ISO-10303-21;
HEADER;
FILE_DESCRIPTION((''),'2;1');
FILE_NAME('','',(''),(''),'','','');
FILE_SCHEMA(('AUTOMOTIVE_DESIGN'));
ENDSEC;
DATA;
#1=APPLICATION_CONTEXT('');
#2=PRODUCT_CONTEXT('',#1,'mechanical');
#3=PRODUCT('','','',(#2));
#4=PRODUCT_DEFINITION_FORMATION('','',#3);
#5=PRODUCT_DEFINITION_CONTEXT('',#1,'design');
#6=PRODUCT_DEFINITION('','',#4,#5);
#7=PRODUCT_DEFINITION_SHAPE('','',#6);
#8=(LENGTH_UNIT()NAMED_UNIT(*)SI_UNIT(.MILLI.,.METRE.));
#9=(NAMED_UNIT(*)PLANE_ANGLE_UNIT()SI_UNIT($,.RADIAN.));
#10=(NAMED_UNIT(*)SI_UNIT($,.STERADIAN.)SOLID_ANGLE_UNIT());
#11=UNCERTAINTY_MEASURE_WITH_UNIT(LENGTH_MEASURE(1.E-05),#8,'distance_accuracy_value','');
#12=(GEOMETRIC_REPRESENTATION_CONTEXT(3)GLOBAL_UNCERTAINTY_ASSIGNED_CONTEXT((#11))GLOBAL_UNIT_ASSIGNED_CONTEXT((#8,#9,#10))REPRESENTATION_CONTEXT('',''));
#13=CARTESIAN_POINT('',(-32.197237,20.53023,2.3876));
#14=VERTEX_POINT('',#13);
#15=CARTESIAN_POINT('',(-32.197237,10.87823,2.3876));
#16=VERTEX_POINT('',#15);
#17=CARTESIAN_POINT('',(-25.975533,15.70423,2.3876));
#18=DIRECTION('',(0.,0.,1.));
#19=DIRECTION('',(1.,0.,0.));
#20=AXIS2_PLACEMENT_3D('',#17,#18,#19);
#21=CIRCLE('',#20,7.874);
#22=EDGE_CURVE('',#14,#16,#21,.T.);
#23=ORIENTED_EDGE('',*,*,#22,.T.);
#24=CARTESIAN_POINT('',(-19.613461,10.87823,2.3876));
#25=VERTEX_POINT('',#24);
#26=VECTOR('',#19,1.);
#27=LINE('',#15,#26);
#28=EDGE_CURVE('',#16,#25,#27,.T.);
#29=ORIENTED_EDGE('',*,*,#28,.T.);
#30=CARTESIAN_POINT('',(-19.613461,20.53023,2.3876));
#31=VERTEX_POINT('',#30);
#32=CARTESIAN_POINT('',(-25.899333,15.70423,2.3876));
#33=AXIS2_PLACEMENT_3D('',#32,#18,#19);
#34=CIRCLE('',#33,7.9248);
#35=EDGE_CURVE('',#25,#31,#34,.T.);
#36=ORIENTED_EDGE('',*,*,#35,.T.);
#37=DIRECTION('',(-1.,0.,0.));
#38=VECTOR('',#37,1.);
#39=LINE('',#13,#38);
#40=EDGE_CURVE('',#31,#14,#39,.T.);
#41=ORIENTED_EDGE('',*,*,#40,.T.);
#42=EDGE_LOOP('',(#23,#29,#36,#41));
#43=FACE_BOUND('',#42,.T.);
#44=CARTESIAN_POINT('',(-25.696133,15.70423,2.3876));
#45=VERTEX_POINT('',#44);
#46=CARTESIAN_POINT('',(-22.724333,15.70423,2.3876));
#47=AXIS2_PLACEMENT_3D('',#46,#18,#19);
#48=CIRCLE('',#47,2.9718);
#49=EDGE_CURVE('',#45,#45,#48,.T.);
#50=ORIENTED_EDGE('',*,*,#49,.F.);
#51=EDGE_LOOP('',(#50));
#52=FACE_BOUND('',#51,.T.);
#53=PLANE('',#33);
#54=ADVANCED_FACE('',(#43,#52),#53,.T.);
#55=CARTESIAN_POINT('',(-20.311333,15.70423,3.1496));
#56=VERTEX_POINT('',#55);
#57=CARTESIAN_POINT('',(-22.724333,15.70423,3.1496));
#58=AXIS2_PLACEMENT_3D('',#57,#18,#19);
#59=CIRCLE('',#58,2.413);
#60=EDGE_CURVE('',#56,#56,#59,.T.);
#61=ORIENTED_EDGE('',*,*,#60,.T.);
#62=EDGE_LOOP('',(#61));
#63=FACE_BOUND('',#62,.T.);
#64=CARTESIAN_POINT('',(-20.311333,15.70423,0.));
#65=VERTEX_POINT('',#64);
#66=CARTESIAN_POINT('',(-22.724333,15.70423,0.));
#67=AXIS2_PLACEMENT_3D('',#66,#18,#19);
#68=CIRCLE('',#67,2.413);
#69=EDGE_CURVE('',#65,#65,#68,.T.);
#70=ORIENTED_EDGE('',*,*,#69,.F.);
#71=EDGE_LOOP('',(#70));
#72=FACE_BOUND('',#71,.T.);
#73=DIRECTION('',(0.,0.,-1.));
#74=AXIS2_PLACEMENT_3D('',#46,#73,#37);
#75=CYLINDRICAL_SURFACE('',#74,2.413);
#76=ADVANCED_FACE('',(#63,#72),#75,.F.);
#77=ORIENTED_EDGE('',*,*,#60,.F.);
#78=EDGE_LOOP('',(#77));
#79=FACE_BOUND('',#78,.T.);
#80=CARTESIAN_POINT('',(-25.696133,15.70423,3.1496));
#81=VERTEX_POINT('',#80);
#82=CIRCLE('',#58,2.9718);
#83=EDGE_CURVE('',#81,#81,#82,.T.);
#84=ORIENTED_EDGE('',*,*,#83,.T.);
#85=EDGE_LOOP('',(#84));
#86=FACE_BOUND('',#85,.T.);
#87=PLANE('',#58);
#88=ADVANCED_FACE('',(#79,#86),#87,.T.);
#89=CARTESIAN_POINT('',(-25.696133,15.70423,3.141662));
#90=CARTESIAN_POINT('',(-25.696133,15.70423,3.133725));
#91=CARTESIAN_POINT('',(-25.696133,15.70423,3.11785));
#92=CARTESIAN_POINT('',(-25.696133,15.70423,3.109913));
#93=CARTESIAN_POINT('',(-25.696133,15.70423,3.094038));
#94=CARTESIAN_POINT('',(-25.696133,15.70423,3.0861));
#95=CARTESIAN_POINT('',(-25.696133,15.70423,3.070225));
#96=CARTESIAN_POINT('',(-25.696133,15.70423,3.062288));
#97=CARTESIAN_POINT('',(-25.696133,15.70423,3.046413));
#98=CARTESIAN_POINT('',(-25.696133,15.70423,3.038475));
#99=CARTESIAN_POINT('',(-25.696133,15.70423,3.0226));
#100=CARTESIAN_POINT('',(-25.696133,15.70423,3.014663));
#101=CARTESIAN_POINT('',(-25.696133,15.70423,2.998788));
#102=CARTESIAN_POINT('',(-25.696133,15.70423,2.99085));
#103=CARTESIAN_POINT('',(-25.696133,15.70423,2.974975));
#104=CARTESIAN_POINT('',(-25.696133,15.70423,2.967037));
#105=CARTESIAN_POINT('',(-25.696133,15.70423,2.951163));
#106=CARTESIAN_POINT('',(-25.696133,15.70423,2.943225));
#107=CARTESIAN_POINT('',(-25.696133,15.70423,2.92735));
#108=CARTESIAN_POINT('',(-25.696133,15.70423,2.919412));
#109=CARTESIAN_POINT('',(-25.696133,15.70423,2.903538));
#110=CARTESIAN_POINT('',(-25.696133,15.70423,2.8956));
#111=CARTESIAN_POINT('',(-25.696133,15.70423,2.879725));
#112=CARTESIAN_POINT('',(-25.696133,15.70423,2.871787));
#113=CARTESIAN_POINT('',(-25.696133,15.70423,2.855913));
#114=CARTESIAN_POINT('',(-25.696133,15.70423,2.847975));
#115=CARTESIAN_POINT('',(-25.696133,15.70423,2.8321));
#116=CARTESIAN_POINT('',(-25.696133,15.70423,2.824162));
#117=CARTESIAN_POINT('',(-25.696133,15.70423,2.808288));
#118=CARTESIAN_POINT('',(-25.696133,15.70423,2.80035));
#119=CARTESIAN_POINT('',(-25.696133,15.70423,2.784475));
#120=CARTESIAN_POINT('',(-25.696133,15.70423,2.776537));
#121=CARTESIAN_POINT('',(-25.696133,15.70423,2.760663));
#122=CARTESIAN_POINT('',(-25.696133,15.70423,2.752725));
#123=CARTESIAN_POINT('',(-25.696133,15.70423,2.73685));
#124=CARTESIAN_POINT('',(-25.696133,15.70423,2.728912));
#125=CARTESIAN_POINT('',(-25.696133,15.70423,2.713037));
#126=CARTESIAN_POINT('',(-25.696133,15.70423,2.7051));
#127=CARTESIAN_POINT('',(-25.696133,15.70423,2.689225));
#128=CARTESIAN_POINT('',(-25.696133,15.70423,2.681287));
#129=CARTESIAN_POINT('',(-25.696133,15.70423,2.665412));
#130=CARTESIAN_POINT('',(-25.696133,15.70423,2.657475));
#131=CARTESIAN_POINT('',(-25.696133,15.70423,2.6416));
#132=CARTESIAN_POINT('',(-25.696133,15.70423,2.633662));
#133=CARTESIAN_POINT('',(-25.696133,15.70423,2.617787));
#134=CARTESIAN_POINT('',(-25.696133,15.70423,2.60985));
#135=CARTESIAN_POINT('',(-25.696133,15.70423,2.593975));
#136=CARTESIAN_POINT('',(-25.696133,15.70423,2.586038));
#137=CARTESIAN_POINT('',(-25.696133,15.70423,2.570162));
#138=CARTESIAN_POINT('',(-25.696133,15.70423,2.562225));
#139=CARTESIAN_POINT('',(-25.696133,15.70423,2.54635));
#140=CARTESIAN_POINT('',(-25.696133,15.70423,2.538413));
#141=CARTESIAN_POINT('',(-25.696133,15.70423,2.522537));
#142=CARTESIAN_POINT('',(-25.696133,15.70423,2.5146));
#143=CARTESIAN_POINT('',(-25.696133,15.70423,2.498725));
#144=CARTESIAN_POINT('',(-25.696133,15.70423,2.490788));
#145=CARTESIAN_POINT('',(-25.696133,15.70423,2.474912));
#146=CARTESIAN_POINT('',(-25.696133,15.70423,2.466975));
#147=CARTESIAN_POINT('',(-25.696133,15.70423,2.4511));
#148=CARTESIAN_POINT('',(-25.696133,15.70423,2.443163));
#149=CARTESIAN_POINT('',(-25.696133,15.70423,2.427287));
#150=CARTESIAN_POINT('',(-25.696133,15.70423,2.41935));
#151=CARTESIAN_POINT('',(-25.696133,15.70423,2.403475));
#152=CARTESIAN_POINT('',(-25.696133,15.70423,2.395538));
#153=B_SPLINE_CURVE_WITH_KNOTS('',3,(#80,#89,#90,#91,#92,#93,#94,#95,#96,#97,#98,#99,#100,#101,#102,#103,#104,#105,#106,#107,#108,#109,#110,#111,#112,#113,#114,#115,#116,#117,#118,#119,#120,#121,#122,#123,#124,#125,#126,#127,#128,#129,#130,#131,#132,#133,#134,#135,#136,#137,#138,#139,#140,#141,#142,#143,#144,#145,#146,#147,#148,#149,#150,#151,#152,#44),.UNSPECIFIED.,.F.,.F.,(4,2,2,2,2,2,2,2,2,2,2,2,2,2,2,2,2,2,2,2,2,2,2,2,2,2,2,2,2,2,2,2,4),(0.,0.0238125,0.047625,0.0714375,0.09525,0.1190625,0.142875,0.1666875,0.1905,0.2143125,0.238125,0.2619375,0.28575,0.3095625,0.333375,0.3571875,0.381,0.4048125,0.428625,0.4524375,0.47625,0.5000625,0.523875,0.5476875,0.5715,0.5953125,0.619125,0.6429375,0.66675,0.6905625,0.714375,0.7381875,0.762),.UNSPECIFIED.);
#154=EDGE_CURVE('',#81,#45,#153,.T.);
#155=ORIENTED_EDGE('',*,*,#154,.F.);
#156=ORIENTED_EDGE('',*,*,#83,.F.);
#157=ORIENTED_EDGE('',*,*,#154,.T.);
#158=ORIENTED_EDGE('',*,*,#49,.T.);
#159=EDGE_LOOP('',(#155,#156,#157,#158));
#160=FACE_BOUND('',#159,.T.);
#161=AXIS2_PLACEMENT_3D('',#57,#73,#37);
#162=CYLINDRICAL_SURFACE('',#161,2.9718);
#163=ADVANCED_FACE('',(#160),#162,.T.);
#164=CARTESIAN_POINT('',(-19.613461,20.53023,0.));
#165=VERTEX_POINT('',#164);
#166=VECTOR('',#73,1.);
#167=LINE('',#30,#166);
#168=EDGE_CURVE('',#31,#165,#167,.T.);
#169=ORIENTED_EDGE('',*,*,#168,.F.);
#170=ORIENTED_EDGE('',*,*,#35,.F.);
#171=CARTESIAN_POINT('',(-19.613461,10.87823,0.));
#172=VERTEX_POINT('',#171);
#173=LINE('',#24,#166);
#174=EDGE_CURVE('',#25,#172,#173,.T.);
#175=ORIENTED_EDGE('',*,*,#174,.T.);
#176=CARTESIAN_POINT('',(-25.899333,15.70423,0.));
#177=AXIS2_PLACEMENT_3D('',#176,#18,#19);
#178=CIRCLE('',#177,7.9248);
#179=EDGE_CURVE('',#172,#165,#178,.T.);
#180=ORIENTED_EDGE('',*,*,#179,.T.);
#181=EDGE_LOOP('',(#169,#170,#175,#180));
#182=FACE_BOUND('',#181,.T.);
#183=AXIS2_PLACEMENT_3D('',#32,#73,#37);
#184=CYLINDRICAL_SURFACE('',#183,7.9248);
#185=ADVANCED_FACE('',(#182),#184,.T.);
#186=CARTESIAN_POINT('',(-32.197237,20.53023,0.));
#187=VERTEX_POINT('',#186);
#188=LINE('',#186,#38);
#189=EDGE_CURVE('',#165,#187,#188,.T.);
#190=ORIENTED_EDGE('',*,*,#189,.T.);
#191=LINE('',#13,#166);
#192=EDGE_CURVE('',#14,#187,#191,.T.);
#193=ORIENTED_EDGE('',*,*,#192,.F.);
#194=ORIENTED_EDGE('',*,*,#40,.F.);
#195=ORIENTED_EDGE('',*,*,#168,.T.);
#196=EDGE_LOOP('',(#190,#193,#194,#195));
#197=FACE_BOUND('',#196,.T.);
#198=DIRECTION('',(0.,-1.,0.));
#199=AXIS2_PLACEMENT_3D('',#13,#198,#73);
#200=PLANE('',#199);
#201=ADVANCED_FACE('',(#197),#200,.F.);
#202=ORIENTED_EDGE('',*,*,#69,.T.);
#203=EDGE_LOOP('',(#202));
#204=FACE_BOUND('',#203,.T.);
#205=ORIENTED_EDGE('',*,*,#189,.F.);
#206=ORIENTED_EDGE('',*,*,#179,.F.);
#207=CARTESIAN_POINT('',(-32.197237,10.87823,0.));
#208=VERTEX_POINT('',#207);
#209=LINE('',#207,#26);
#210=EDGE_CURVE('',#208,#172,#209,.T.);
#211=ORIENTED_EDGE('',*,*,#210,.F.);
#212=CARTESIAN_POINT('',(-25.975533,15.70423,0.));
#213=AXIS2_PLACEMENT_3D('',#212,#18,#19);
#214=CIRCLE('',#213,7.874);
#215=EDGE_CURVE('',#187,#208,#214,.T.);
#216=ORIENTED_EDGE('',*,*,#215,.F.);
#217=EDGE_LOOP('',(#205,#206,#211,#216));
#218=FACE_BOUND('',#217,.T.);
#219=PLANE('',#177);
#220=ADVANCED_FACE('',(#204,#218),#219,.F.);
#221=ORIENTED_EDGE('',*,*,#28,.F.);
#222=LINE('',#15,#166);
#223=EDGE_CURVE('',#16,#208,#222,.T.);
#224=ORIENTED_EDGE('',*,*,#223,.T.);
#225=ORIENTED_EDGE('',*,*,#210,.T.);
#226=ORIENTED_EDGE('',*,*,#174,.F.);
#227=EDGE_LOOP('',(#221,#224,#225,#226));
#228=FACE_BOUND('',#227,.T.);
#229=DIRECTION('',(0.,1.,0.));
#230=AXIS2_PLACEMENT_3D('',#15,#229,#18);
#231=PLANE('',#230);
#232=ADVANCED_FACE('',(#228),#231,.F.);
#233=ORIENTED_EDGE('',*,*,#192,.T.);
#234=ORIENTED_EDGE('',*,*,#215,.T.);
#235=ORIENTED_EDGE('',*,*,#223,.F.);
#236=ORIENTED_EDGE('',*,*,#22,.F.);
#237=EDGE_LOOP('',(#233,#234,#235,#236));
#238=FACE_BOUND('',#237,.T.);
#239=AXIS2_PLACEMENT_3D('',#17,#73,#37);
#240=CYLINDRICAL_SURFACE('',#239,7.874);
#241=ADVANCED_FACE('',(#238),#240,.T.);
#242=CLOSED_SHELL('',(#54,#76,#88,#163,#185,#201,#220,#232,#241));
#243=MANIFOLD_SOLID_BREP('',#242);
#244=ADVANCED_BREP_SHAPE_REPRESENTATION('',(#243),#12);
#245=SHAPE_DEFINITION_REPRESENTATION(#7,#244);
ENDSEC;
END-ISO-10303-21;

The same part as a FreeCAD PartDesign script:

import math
import FreeCAD as App
import Part
import Sketcher

V = App.Vector
Q = App.Units.Quantity

doc = App.newDocument("Part")
body = doc.addObject("PartDesign::Body", "Body")

# Sketch on XY plane
sketch1 = body.newObject("Sketcher::SketchObject", "Sketch")
sketch1.AttachmentSupport = (doc.getObject("XY_Plane"), [""])
sketch1.MapMode = "FlatFace"
sketch1.addGeometry(Part.LineSegment(V(-19.6, 20.5, 0), V(-32.2, 20.5, 0)), False)
sketch1.addGeometry(Part.ArcOfCircle(Part.Circle(V(-26, 15.7, 0), V(0, 0, 1), 7.9), math.radians(142), math.radians(218)), False)
sketch1.addGeometry(Part.LineSegment(V(-32.2, 10.9, 0), V(-19.6, 10.9, 0)), False)
sketch1.addGeometry(Part.ArcOfCircle(Part.Circle(V(-25.9, 15.7, 0), V(0, 0, 1), 7.9), math.radians(-38), math.radians(38)), False)
sketch1.addGeometry(Part.Circle(V(-22.7, 15.7, 0), V(0, 0, 1), 2.4), False)
sketch1.addConstraint(Sketcher.Constraint("Coincident", 0, 2, 1, 1))
sketch1.addConstraint(Sketcher.Constraint("Coincident", 1, 2, 2, 1))
sketch1.addConstraint(Sketcher.Constraint("Coincident", 2, 2, 3, 1))
sketch1.addConstraint(Sketcher.Constraint("Coincident", 3, 2, 0, 1))
sketch1.addConstraint(Sketcher.Constraint("Horizontal", 0))
sketch1.addConstraint(Sketcher.Constraint("Horizontal", 2))
sketch1.addConstraint(Sketcher.Constraint("Horizontal", 1, 3, 3, 3))
sketch1.addConstraint(Sketcher.Constraint("Horizontal", 3, 3, 4, 3))
sketch1.addConstraint(Sketcher.Constraint("Vertical", 0, 2, 1, 2))
sketch1.addConstraint(Sketcher.Constraint("Diameter", 4, Q("0.19 in")))
sketch1.addConstraint(Sketcher.Constraint("Radius", 1, Q("0.31 in")))
sketch1.addConstraint(Sketcher.Constraint("Radius", 3, Q("0.312 in")))
sketch1.addConstraint(Sketcher.Constraint("DistanceY", 1, 3, 0, 2, Q("0.19 in")))
sketch1.addConstraint(Sketcher.Constraint("DistanceX", 1, 3, 3, 3, Q("0.003 in")))
sketch1.addConstraint(Sketcher.Constraint("DistanceX", 3, 3, 4, 3, Q("0.125 in")))
sketch1.addConstraint(Sketcher.Constraint("DistanceY", -1, 1, 1, 3, 15.70423))
sketch1.addConstraint(Sketcher.Constraint("DistanceX", 2, 2, -1, 1, 19.613461))
pad1 = body.newObject("PartDesign::Pad", "Pad")
pad1.Profile = sketch1
pad1.Length = Q("0.094 in")

# Sketch on XY plane
sketch2 = body.newObject("Sketcher::SketchObject", "Sketch001")
sketch2.AttachmentSupport = (doc.getObject("XY_Plane"), [""])
sketch2.MapMode = "FlatFace"
sketch2.AttachmentOffset = App.Placement(V(0, 0, 0.094 * 25.4), App.Rotation())
sketch2.addGeometry(Part.Circle(V(-22.7, 15.7, 0), V(0, 0, 1), 3), False)
sketch2.addGeometry(Part.Circle(V(-22.7, 15.7, 0), V(0, 0, 1), 2.4), False)
sketch2.addConstraint(Sketcher.Constraint("Coincident", 1, 3, 0, 3))
sketch2.addConstraint(Sketcher.Constraint("Diameter", 1, Q("0.19 in")))
sketch2.addConstraint(Sketcher.Constraint("Diameter", 0, Q("0.234 in")))
sketch2.addConstraint(Sketcher.Constraint("DistanceY", -1, 1, 0, 3, 15.70423))
sketch2.addConstraint(Sketcher.Constraint("DistanceX", 0, 3, -1, 1, 22.724333))
pad2 = body.newObject("PartDesign::Pad", "Pad001")
pad2.Profile = sketch2
pad2.Length = Q("0.03 in")

doc.recompute()
